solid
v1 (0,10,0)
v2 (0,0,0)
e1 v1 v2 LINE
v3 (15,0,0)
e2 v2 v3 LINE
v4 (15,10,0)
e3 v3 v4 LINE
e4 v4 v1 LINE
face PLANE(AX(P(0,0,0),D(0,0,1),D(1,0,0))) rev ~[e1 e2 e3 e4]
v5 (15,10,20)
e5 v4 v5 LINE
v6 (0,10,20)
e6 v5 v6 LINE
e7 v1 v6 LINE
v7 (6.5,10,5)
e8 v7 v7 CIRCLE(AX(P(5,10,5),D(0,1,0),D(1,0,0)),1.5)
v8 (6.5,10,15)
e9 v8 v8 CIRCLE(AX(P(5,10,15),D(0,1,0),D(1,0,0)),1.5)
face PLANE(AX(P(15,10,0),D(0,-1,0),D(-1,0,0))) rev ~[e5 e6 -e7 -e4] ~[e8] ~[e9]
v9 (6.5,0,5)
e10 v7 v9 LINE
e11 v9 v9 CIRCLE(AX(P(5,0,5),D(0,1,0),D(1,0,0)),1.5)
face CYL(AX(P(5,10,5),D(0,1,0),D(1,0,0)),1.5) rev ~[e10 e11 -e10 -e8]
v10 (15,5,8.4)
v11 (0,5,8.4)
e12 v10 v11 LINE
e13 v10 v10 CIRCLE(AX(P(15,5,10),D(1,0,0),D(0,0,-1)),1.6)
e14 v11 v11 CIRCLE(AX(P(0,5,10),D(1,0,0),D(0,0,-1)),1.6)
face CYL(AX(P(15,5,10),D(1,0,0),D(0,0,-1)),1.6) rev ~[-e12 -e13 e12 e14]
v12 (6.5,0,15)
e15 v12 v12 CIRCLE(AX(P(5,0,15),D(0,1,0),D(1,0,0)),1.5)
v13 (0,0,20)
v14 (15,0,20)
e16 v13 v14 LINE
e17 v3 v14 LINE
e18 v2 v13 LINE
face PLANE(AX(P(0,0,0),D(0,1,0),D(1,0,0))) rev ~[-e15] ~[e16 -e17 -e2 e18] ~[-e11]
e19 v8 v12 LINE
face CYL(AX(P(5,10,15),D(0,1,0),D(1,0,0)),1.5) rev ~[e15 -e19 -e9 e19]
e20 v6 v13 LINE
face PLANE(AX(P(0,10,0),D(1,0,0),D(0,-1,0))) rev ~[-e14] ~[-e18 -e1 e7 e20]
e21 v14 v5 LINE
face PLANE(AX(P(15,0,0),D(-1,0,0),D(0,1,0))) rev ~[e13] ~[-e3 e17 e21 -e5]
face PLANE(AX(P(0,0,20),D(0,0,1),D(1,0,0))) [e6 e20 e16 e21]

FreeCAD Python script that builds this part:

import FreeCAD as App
import Part
import Sketcher
from FreeCAD import Vector


def add_polygon(sketch, points):
    """Adds a closed chain of lines whose ends are joined by coincident constraints."""
    first, n = sketch.GeometryCount, len(points)
    for a, b in zip(points, points[1:] + points[:1]):
        sketch.addGeometry(Part.LineSegment(App.Vector(*a, 0), App.Vector(*b, 0)), False)
    for i in range(n):
        sketch.addConstraint(Sketcher.Constraint("Coincident", first + i, 2, first + (i + 1) % n, 1))

doc = App.newDocument("Part")
params = doc.addObject("Spreadsheet::Sheet", "Params")
for row, (alias, value) in enumerate([
    ("sketch1_width", "15 mm"),
    ("sketch1_height", "10 mm"),
    ("pad1_length", "20 mm"),
    ("sketch2_diameter", "3 mm"),
    ("pocket1_length", "10 mm"),
    ("sketch3_diameter", "3.2 mm"),
    ("pocket2_length", "15 mm"),
], start=1):
    params.set(f"A{row}", alias)
    params.set(f"B{row}", "=" + value)
    params.setAlias(f"B{row}", alias)

body = doc.addObject("PartDesign::Body", "Body")

# Sketch on XY plane
sketch1 = body.newObject("Sketcher::SketchObject", "Sketch")
sketch1.AttachmentSupport = (doc.getObject("XY_Plane"), [""])
sketch1.MapMode = "FlatFace"
add_polygon(sketch1, [(0, 10), (0, 0), (15, 0), (15, 10)])  # lines 0-3
sketch1.addConstraint(Sketcher.Constraint("Vertical", 0))
sketch1.addConstraint(Sketcher.Constraint("Horizontal", 1))
sketch1.addConstraint(Sketcher.Constraint("Vertical", 2))
sketch1.addConstraint(Sketcher.Constraint("Horizontal", 3))
sketch1.addConstraint(Sketcher.Constraint("Coincident", 0, 2, -1, 1))
sketch1.addConstraint(Sketcher.Constraint("DistanceX", 1, 1, 1, 2, 15.0))
sketch1.addConstraint(Sketcher.Constraint("DistanceY", 0, 2, 0, 1, 10.0))
sketch1.setExpression("Constraints[9]", "Params.sketch1_width")
sketch1.setExpression("Constraints[10]", "Params.sketch1_height")
pad1 = body.newObject("PartDesign::Pad", "Pad")
pad1.Profile = sketch1
pad1.setExpression("Length", "Params.pad1_length")

# Sketch on XZ plane
sketch2 = body.newObject("Sketcher::SketchObject", "Sketch001")
sketch2.AttachmentSupport = (doc.getObject("XZ_Plane"), [""])
sketch2.MapMode = "FlatFace"
sketch2.AttachmentOffset = App.Placement(Vector(0, 0, -10), App.Rotation())
sketch2.addGeometry(Part.Circle(Vector(5, 5, 0), Vector(0, 0, 1), 1.5), False)
sketch2.addGeometry(Part.Circle(Vector(5, 15, 0), Vector(0, 0, 1), 1.5), False)
sketch2.addConstraint(Sketcher.Constraint("Equal", 0, 1))
sketch2.addConstraint(Sketcher.Constraint("Vertical", 0, 3, 1, 3))
sketch2.addConstraint(Sketcher.Constraint("Diameter", 0, 3.0))
sketch2.addConstraint(Sketcher.Constraint("DistanceX", -1, 1, 0, 3, 5.0))
sketch2.addConstraint(Sketcher.Constraint("DistanceY", -1, 1, 0, 3, 5.0))
sketch2.addConstraint(Sketcher.Constraint("DistanceY", -1, 1, 1, 3, 15.0))
sketch2.setExpression("Constraints[2]", "Params.sketch2_diameter")
pocket1 = body.newObject("PartDesign::Pocket", "Pocket")
pocket1.Profile = sketch2
pocket1.setExpression("Length", "Params.pocket1_length")
pocket1.Reversed = True

# Sketch on YZ plane
sketch3 = body.newObject("Sketcher::SketchObject", "Sketch002")
sketch3.AttachmentSupport = (doc.getObject("YZ_Plane"), [""])
sketch3.MapMode = "FlatFace"
sketch3.AttachmentOffset = App.Placement(Vector(0, 0, 15), App.Rotation())
sketch3.addGeometry(Part.Circle(Vector(5, 10, 0), Vector(0, 0, 1), 1.6), False)
sketch3.addConstraint(Sketcher.Constraint("Diameter", 0, 3.2))
sketch3.addConstraint(Sketcher.Constraint("DistanceX", -1, 1, 0, 3, 5.0))
sketch3.addConstraint(Sketcher.Constraint("DistanceY", -1, 1, 0, 3, 10.0))
sketch3.setExpression("Constraints[0]", "Params.sketch3_diameter")
pocket2 = body.newObject("PartDesign::Pocket", "Pocket001")
pocket2.Profile = sketch3
pocket2.setExpression("Length", "Params.pocket2_length")

doc.recompute()
